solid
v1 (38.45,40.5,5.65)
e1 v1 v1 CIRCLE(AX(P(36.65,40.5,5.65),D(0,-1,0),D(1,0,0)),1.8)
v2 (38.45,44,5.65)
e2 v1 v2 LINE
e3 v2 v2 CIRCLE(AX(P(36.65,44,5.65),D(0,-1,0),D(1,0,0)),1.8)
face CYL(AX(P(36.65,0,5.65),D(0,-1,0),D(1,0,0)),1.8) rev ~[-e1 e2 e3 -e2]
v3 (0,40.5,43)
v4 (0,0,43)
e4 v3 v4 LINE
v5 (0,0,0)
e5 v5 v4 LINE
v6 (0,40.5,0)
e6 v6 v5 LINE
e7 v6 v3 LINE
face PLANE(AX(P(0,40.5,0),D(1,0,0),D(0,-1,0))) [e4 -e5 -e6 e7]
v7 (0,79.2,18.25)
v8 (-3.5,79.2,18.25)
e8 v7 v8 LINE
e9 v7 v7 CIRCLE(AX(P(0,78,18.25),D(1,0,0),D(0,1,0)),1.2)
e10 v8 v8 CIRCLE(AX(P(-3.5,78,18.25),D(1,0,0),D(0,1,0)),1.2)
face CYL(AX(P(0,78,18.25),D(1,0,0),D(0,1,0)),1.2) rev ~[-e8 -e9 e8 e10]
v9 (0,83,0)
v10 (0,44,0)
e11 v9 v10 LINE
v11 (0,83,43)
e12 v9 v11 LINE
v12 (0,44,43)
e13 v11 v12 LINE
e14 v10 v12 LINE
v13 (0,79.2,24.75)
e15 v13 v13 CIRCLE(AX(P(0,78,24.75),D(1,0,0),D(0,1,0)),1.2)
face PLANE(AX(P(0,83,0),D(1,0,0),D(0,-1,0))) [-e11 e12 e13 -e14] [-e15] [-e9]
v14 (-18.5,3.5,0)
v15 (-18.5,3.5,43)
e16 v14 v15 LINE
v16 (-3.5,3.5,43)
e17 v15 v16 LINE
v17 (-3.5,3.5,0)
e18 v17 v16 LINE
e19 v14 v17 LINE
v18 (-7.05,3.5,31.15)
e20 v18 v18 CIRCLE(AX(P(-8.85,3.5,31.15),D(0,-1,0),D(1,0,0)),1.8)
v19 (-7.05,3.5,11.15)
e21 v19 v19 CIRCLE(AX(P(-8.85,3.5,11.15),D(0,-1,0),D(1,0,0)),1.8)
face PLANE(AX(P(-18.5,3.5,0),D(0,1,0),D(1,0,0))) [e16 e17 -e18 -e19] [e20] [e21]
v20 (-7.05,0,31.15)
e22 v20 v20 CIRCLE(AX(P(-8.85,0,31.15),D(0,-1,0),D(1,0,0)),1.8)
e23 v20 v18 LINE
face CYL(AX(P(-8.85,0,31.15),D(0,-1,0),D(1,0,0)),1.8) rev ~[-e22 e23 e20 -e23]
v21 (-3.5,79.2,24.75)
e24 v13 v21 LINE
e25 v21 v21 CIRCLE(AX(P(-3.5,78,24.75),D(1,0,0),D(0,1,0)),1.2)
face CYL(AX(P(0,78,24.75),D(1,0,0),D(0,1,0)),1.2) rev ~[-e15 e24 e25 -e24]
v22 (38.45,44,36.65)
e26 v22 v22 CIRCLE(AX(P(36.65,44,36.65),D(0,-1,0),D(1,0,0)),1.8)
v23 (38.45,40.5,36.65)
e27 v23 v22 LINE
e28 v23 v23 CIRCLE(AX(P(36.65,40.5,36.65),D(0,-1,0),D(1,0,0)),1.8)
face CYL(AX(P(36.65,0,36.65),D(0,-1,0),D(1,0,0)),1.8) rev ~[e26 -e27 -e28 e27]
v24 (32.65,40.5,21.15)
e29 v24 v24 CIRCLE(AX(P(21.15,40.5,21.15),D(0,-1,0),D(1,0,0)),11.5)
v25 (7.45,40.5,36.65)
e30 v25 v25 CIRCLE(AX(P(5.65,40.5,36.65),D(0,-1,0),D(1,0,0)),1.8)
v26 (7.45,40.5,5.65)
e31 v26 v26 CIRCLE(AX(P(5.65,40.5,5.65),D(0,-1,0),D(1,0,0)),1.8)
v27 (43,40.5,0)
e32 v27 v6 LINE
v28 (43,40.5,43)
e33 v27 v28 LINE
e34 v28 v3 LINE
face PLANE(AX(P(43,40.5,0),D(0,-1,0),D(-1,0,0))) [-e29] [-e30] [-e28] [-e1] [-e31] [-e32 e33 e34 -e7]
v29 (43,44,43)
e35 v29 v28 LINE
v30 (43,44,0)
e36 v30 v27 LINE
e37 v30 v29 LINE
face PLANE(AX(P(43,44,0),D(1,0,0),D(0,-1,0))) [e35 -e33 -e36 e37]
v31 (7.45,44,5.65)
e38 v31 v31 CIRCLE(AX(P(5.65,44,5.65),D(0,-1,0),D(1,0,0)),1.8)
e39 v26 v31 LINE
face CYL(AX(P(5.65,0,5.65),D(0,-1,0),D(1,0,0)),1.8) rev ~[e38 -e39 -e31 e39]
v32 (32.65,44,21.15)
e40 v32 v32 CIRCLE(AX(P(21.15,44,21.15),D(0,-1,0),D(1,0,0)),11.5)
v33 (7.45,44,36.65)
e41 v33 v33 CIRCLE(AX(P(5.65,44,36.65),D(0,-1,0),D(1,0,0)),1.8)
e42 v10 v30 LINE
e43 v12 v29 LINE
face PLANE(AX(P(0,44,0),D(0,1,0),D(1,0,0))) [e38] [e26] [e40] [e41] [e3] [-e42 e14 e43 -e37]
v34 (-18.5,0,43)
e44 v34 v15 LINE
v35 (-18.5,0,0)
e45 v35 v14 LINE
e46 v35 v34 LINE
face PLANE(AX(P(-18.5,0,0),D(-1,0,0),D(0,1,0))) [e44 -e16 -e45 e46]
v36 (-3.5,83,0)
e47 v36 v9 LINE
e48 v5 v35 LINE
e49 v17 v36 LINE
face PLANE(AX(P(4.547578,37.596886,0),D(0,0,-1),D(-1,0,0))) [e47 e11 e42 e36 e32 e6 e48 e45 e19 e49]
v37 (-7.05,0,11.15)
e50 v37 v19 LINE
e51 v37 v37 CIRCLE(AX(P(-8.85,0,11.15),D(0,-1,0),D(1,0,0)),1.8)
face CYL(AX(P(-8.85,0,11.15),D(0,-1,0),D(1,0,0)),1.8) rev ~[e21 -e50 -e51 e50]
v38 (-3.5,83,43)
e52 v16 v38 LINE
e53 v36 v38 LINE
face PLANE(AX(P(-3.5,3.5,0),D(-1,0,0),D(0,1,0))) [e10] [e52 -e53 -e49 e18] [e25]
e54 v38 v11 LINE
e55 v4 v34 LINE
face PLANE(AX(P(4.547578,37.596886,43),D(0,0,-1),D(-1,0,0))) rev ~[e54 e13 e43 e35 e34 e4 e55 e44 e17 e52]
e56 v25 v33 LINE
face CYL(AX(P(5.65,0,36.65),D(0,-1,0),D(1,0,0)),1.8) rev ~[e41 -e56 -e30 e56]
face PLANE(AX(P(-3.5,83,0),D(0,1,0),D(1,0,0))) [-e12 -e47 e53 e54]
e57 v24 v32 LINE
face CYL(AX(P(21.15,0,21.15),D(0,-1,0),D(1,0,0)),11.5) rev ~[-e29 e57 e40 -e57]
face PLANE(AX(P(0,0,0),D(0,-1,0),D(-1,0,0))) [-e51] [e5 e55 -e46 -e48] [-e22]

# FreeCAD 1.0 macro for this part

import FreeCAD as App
import Part
import Sketcher
Q = App.Units.Quantity

doc = App.newDocument("Part")
body = doc.addObject("PartDesign::Body", "Body")

# Sketch on XY plane
sketch1 = doc.addObject("Sketcher::SketchObject", "Sketch")
body.addObject(sketch1)
sketch1.AttachmentSupport = (doc.XY_Plane, [""])
sketch1.MapMode = "FlatFace"
sketch1.addGeometry(Part.LineSegment(App.Vector(-3.5, 3.5, 0), App.Vector(-18.5, 3.5, 0)), False)
sketch1.addGeometry(Part.LineSegment(App.Vector(-18.5, 3.5, 0), App.Vector(-18.5, 0, 0)), False)
sketch1.addGeometry(Part.LineSegment(App.Vector(-18.5, 0, 0), App.Vector(0, 0, 0)), False)
sketch1.addGeometry(Part.LineSegment(App.Vector(0, 0, 0), App.Vector(0, 40.5, 0)), False)
sketch1.addGeometry(Part.LineSegment(App.Vector(0, 40.5, 0), App.Vector(43, 40.5, 0)), False)
sketch1.addGeometry(Part.LineSegment(App.Vector(43, 40.5, 0), App.Vector(43, 44, 0)), False)
sketch1.addGeometry(Part.LineSegment(App.Vector(43, 44, 0), App.Vector(0, 44, 0)), False)
sketch1.addGeometry(Part.LineSegment(App.Vector(0, 44, 0), App.Vector(0, 83, 0)), False)
sketch1.addGeometry(Part.LineSegment(App.Vector(0, 83, 0), App.Vector(-3.5, 83, 0)), False)
sketch1.addGeometry(Part.LineSegment(App.Vector(-3.5, 83, 0), App.Vector(-3.5, 3.5, 0)), False)
sketch1.addConstraint(Sketcher.Constraint("Coincident", 0, 2, 1, 1))
sketch1.addConstraint(Sketcher.Constraint("Coincident", 1, 2, 2, 1))
sketch1.addConstraint(Sketcher.Constraint("Coincident", 2, 2, 3, 1))
sketch1.addConstraint(Sketcher.Constraint("Coincident", 3, 2, 4, 1))
sketch1.addConstraint(Sketcher.Constraint("Coincident", 4, 2, 5, 1))
sketch1.addConstraint(Sketcher.Constraint("Coincident", 5, 2, 6, 1))
sketch1.addConstraint(Sketcher.Constraint("Coincident", 6, 2, 7, 1))
sketch1.addConstraint(Sketcher.Constraint("Coincident", 7, 2, 8, 1))
sketch1.addConstraint(Sketcher.Constraint("Coincident", 8, 2, 9, 1))
sketch1.addConstraint(Sketcher.Constraint("Coincident", 9, 2, 0, 1))
sketch1.addConstraint(Sketcher.Constraint("Horizontal", 0))
sketch1.addConstraint(Sketcher.Constraint("Vertical", 1))
sketch1.addConstraint(Sketcher.Constraint("Horizontal", 2))
sketch1.addConstraint(Sketcher.Constraint("Vertical", 3))
sketch1.addConstraint(Sketcher.Constraint("Horizontal", 4))
sketch1.addConstraint(Sketcher.Constraint("Vertical", 5))
sketch1.addConstraint(Sketcher.Constraint("Horizontal", 6))
sketch1.addConstraint(Sketcher.Constraint("Vertical", 7))
sketch1.addConstraint(Sketcher.Constraint("Horizontal", 8))
sketch1.addConstraint(Sketcher.Constraint("Vertical", 9))
sketch1.addConstraint(Sketcher.Constraint("Coincident", 2, 2, -1, 1))
sketch1.addConstraint(Sketcher.Constraint("PointOnObject", 6, 2, -2))
sketch1.addConstraint(Sketcher.Constraint("Equal", 8, 1))
sketch1.addConstraint(Sketcher.Constraint("Equal", 1, 5))
sketch1.addConstraint(Sketcher.Constraint("DistanceX", 0, 2, 0, 1, Q("15 mm")))
sketch1.addConstraint(Sketcher.Constraint("DistanceX", 4, 1, 4, 2, Q("43 mm")))
sketch1.addConstraint(Sketcher.Constraint("DistanceY", 7, 1, 7, 2, Q("39 mm")))
sketch1.addConstraint(Sketcher.Constraint("DistanceX", 2, 1, 2, 2, Q("18.5 mm")))
sketch1.addConstraint(Sketcher.Constraint("DistanceY", 3, 1, 3, 2, Q("40.5 mm")))
pad1 = doc.addObject("PartDesign::Pad", "Pad")
body.addObject(pad1)
pad1.Profile = sketch1
pad1.Length = 43

# Sketch on XZ plane
sketch2 = doc.addObject("Sketcher::SketchObject", "Sketch001")
body.addObject(sketch2)
sketch2.AttachmentSupport = (doc.XZ_Plane, [""])
sketch2.MapMode = "FlatFace"
sketch2.addGeometry(Part.Circle(App.Vector(21.1, 21.1, 0), App.Vector(0, 0, 1), 11.5), False)
sketch2.addGeometry(Part.Circle(App.Vector(5.7, 36.6, 0), App.Vector(0, 0, 1), 1.8), False)
sketch2.addGeometry(Part.Circle(App.Vector(36.6, 36.6, 0), App.Vector(0, 0, 1), 1.8), False)
sketch2.addGeometry(Part.Circle(App.Vector(36.6, 5.7, 0), App.Vector(0, 0, 1), 1.8), False)
sketch2.addGeometry(Part.Circle(App.Vector(5.7, 5.7, 0), App.Vector(0, 0, 1), 1.8), False)
sketch2.addGeometry(Part.Circle(App.Vector(-8.8, 31.1, 0), App.Vector(0, 0, 1), 1.8), False)
sketch2.addGeometry(Part.Circle(App.Vector(-8.8, 11.2, 0), App.Vector(0, 0, 1), 1.8), False)
sketch2.addConstraint(Sketcher.Constraint("Equal", 1, 2))
sketch2.addConstraint(Sketcher.Constraint("Equal", 2, 3))
sketch2.addConstraint(Sketcher.Constraint("Equal", 3, 4))
sketch2.addConstraint(Sketcher.Constraint("Equal", 4, 5))
sketch2.addConstraint(Sketcher.Constraint("Equal", 5, 6))
sketch2.addConstraint(Sketcher.Constraint("Horizontal", 1, 3, 2, 3))
sketch2.addConstraint(Sketcher.Constraint("Horizontal", 3, 3, 4, 3))
sketch2.addConstraint(Sketcher.Constraint("Vertical", 2, 3, 3, 3))
sketch2.addConstraint(Sketcher.Constraint("Vertical", 1, 3, 4, 3))
sketch2.addConstraint(Sketcher.Constraint("Vertical", 5, 3, 6, 3))
sketch2.addConstraint(Sketcher.Constraint("Diameter", 0, Q("23 mm")))
sketch2.addConstraint(Sketcher.Constraint("Diameter", 1, Q("3.6 mm")))
sketch2.addConstraint(Sketcher.Constraint("DistanceX", 1, 3, 2, 3, Q("31 mm")))
sketch2.addConstraint(Sketcher.Constraint("DistanceY", 3, 3, 2, 3, Q("31 mm")))
sketch2.addConstraint(Sketcher.Constraint("DistanceX", 5, 3, 0, 3, Q("30 mm")))
sketch2.addConstraint(Sketcher.Constraint("DistanceY", 0, 3, 5, 3, Q("10 mm")))
sketch2.addConstraint(Sketcher.Constraint("DistanceY", 6, 3, 5, 3, Q("20 mm")))
sketch2.addConstraint(Sketcher.Constraint("DistanceX", 1, 3, 0, 3, Q("15.5 mm")))
sketch2.addConstraint(Sketcher.Constraint("DistanceY", 0, 3, 1, 3, Q("15.5 mm")))
sketch2.addConstraint(Sketcher.Constraint("DistanceX", -1, 1, 0, 3, Q("21.15 mm")))
sketch2.addConstraint(Sketcher.Constraint("DistanceY", -1, 1, 0, 3, Q("21.15 mm")))
pocket1 = doc.addObject("PartDesign::Pocket", "Pocket")
body.addObject(pocket1)
pocket1.Profile = sketch2
pocket1.Type = "ThroughAll"

# Sketch on YZ plane
sketch3 = doc.addObject("Sketcher::SketchObject", "Sketch002")
body.addObject(sketch3)
sketch3.AttachmentSupport = (doc.YZ_Plane, [""])
sketch3.MapMode = "FlatFace"
sketch3.addGeometry(Part.Circle(App.Vector(78, 24.8, 0), App.Vector(0, 0, 1), 1.2), False)
sketch3.addGeometry(Part.Circle(App.Vector(78, 18.2, 0), App.Vector(0, 0, 1), 1.2), False)
sketch3.addConstraint(Sketcher.Constraint("Equal", 0, 1))
sketch3.addConstraint(Sketcher.Constraint("Vertical", 0, 3, 1, 3))
sketch3.addConstraint(Sketcher.Constraint("Diameter", 0, Q("2.4 mm")))
sketch3.addConstraint(Sketcher.Constraint("DistanceX", -1, 1, 0, 3, Q("78 mm")))
sketch3.addConstraint(Sketcher.Constraint("DistanceY", 1, 3, 0, 3, Q("6.5 mm")))
sketch3.addConstraint(Sketcher.Constraint("DistanceY", -1, 1, 0, 3, Q("24.75 mm")))
pocket2 = doc.addObject("PartDesign::Pocket", "Pocket001")
body.addObject(pocket2)
pocket2.Profile = sketch3
pocket2.Length = 3.5

doc.recompute()
